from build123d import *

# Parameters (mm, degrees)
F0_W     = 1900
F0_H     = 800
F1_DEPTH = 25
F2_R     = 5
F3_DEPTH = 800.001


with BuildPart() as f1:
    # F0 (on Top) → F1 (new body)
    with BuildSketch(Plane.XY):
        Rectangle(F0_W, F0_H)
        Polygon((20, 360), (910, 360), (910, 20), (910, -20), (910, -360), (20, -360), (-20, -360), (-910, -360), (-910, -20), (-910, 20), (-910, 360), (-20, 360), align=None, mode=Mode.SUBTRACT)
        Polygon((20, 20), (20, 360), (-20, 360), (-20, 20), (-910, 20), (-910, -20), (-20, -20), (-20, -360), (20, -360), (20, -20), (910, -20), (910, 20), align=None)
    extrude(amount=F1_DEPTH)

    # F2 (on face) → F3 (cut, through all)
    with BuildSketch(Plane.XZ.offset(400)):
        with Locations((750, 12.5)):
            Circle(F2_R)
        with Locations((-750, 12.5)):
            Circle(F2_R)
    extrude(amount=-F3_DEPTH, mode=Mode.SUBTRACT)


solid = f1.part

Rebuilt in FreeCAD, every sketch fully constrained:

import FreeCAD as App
import Part
import Sketcher

V = App.Vector

doc = App.newDocument("Part")
body = doc.addObject("PartDesign::Body", "Body")

sketch1 = doc.addObject("Sketcher::SketchObject", "Sketch")
body.addObject(sketch1)
sketch1.AttachmentSupport = (doc.XY_Plane, [""])
sketch1.MapMode = "FlatFace"
sketch1.addGeometry([
    Part.LineSegment(V(-950, 400, 0), V(-950, -400, 0)),
    Part.LineSegment(V(-950, -400, 0), V(950, -400, 0)),
    Part.LineSegment(V(950, -400, 0), V(950, 400, 0)),
    Part.LineSegment(V(950, 400, 0), V(-950, 400, 0)),
    Part.LineSegment(V(-910, 360, 0), V(-20, 360, 0)),
    Part.LineSegment(V(-20, 360, 0), V(-20, 20, 0)),
    Part.LineSegment(V(-20, 20, 0), V(-910, 20, 0)),
    Part.LineSegment(V(-910, 20, 0), V(-910, 360, 0)),
    Part.LineSegment(V(20, 360, 0), V(910, 360, 0)),
    Part.LineSegment(V(910, 360, 0), V(910, 20, 0)),
    Part.LineSegment(V(910, 20, 0), V(20, 20, 0)),
    Part.LineSegment(V(20, 20, 0), V(20, 360, 0)),
    Part.LineSegment(V(910, -20, 0), V(910, -360, 0)),
    Part.LineSegment(V(910, -360, 0), V(20, -360, 0)),
    Part.LineSegment(V(20, -360, 0), V(20, -20, 0)),
    Part.LineSegment(V(20, -20, 0), V(910, -20, 0)),
    Part.LineSegment(V(-20, -360, 0), V(-910, -360, 0)),
    Part.LineSegment(V(-910, -360, 0), V(-910, -20, 0)),
    Part.LineSegment(V(-910, -20, 0), V(-20, -20, 0)),
    Part.LineSegment(V(-20, -20, 0), V(-20, -360, 0)),
], False)
sketch1.addConstraint([
    Sketcher.Constraint("Coincident", 0, 2, 1, 1),
    Sketcher.Constraint("Coincident", 1, 2, 2, 1),
    Sketcher.Constraint("Coincident", 2, 2, 3, 1),
    Sketcher.Constraint("Coincident", 3, 2, 0, 1),
    Sketcher.Constraint("Coincident", 4, 2, 5, 1),
    Sketcher.Constraint("Coincident", 5, 2, 6, 1),
    Sketcher.Constraint("Coincident", 6, 2, 7, 1),
    Sketcher.Constraint("Coincident", 7, 2, 4, 1),
    Sketcher.Constraint("Coincident", 8, 2, 9, 1),
    Sketcher.Constraint("Coincident", 9, 2, 10, 1),
    Sketcher.Constraint("Coincident", 10, 2, 11, 1),
    Sketcher.Constraint("Coincident", 11, 2, 8, 1),
    Sketcher.Constraint("Coincident", 12, 2, 13, 1),
    Sketcher.Constraint("Coincident", 13, 2, 14, 1),
    Sketcher.Constraint("Coincident", 14, 2, 15, 1),
    Sketcher.Constraint("Coincident", 15, 2, 12, 1),
    Sketcher.Constraint("Coincident", 16, 2, 17, 1),
    Sketcher.Constraint("Coincident", 17, 2, 18, 1),
    Sketcher.Constraint("Coincident", 18, 2, 19, 1),
    Sketcher.Constraint("Coincident", 19, 2, 16, 1),
    Sketcher.Constraint("Vertical", 0),
    Sketcher.Constraint("Horizontal", 1),
    Sketcher.Constraint("Vertical", 2),
    Sketcher.Constraint("Horizontal", 3),
    Sketcher.Constraint("Horizontal", 4),
    Sketcher.Constraint("Vertical", 5),
    Sketcher.Constraint("Horizontal", 6),
    Sketcher.Constraint("Vertical", 7),
    Sketcher.Constraint("Horizontal", 8),
    Sketcher.Constraint("Vertical", 9),
    Sketcher.Constraint("Horizontal", 10),
    Sketcher.Constraint("Vertical", 11),
    Sketcher.Constraint("Vertical", 12),
    Sketcher.Constraint("Horizontal", 13),
    Sketcher.Constraint("Vertical", 14),
    Sketcher.Constraint("Horizontal", 15),
    Sketcher.Constraint("Horizontal", 16),
    Sketcher.Constraint("Vertical", 17),
    Sketcher.Constraint("Horizontal", 18),
    Sketcher.Constraint("Vertical", 19),
    Sketcher.Constraint("Symmetric", 0, 2, 2, 2, -1, 1),
    Sketcher.Constraint("Symmetric", 7, 2, 12, 2, -1, 1),
    Sketcher.Constraint("Symmetric", 5, 2, 14, 2, -1, 1),
    Sketcher.Constraint("Symmetric", 8, 2, 16, 2, -1, 1),
    Sketcher.Constraint("Symmetric", 10, 2, 18, 2, -1, 1),
    Sketcher.Constraint("Symmetric", 7, 2, 8, 2, -2),
    Sketcher.Constraint("Symmetric", 5, 2, 10, 2, -2),
    Sketcher.Constraint("DistanceX", 1, 1, 1, 2, 1900.0),
    Sketcher.Constraint("DistanceX", 4, 1, 4, 2, 890.0),
    Sketcher.Constraint("DistanceY", 0, 2, 0, 1, 800.0),
    Sketcher.Constraint("DistanceY", 5, 2, 5, 1, 340.0),
    Sketcher.Constraint("DistanceX", 4, 2, -1, 1, 20.0),
    Sketcher.Constraint("DistanceY", -1, 1, 4, 2, 360.0),
])
pad1 = doc.addObject("PartDesign::Pad", "Pad")
body.addObject(pad1)
pad1.Profile = sketch1
pad1.Length = 25

sketch2 = doc.addObject("Sketcher::SketchObject", "Sketch001")
body.addObject(sketch2)
sketch2.AttachmentSupport = (doc.XZ_Plane, [""])
sketch2.MapMode = "FlatFace"
sketch2.AttachmentOffset = App.Placement(V(0, 0, 400), App.Rotation())
sketch2.addGeometry([
    Part.Circle(V(750, 12, 0), V(0, 0, 1), 5),
    Part.Circle(V(-750, 12, 0), V(0, 0, 1), 5),
], False)
sketch2.addConstraint([
    Sketcher.Constraint("Equal", 0, 1),
    Sketcher.Constraint("Symmetric", 0, 3, 1, 3, -2),
    Sketcher.Constraint("Diameter", 0, 10.0),
    Sketcher.Constraint("DistanceX", -1, 1, 0, 3, 750.0),
    Sketcher.Constraint("DistanceY", -1, 1, 0, 3, 12.5),
])
pocket1 = doc.addObject("PartDesign::Pocket", "Pocket")
body.addObject(pocket1)
pocket1.Profile = sketch2
pocket1.Type = "ThroughAll"

doc.recompute()
